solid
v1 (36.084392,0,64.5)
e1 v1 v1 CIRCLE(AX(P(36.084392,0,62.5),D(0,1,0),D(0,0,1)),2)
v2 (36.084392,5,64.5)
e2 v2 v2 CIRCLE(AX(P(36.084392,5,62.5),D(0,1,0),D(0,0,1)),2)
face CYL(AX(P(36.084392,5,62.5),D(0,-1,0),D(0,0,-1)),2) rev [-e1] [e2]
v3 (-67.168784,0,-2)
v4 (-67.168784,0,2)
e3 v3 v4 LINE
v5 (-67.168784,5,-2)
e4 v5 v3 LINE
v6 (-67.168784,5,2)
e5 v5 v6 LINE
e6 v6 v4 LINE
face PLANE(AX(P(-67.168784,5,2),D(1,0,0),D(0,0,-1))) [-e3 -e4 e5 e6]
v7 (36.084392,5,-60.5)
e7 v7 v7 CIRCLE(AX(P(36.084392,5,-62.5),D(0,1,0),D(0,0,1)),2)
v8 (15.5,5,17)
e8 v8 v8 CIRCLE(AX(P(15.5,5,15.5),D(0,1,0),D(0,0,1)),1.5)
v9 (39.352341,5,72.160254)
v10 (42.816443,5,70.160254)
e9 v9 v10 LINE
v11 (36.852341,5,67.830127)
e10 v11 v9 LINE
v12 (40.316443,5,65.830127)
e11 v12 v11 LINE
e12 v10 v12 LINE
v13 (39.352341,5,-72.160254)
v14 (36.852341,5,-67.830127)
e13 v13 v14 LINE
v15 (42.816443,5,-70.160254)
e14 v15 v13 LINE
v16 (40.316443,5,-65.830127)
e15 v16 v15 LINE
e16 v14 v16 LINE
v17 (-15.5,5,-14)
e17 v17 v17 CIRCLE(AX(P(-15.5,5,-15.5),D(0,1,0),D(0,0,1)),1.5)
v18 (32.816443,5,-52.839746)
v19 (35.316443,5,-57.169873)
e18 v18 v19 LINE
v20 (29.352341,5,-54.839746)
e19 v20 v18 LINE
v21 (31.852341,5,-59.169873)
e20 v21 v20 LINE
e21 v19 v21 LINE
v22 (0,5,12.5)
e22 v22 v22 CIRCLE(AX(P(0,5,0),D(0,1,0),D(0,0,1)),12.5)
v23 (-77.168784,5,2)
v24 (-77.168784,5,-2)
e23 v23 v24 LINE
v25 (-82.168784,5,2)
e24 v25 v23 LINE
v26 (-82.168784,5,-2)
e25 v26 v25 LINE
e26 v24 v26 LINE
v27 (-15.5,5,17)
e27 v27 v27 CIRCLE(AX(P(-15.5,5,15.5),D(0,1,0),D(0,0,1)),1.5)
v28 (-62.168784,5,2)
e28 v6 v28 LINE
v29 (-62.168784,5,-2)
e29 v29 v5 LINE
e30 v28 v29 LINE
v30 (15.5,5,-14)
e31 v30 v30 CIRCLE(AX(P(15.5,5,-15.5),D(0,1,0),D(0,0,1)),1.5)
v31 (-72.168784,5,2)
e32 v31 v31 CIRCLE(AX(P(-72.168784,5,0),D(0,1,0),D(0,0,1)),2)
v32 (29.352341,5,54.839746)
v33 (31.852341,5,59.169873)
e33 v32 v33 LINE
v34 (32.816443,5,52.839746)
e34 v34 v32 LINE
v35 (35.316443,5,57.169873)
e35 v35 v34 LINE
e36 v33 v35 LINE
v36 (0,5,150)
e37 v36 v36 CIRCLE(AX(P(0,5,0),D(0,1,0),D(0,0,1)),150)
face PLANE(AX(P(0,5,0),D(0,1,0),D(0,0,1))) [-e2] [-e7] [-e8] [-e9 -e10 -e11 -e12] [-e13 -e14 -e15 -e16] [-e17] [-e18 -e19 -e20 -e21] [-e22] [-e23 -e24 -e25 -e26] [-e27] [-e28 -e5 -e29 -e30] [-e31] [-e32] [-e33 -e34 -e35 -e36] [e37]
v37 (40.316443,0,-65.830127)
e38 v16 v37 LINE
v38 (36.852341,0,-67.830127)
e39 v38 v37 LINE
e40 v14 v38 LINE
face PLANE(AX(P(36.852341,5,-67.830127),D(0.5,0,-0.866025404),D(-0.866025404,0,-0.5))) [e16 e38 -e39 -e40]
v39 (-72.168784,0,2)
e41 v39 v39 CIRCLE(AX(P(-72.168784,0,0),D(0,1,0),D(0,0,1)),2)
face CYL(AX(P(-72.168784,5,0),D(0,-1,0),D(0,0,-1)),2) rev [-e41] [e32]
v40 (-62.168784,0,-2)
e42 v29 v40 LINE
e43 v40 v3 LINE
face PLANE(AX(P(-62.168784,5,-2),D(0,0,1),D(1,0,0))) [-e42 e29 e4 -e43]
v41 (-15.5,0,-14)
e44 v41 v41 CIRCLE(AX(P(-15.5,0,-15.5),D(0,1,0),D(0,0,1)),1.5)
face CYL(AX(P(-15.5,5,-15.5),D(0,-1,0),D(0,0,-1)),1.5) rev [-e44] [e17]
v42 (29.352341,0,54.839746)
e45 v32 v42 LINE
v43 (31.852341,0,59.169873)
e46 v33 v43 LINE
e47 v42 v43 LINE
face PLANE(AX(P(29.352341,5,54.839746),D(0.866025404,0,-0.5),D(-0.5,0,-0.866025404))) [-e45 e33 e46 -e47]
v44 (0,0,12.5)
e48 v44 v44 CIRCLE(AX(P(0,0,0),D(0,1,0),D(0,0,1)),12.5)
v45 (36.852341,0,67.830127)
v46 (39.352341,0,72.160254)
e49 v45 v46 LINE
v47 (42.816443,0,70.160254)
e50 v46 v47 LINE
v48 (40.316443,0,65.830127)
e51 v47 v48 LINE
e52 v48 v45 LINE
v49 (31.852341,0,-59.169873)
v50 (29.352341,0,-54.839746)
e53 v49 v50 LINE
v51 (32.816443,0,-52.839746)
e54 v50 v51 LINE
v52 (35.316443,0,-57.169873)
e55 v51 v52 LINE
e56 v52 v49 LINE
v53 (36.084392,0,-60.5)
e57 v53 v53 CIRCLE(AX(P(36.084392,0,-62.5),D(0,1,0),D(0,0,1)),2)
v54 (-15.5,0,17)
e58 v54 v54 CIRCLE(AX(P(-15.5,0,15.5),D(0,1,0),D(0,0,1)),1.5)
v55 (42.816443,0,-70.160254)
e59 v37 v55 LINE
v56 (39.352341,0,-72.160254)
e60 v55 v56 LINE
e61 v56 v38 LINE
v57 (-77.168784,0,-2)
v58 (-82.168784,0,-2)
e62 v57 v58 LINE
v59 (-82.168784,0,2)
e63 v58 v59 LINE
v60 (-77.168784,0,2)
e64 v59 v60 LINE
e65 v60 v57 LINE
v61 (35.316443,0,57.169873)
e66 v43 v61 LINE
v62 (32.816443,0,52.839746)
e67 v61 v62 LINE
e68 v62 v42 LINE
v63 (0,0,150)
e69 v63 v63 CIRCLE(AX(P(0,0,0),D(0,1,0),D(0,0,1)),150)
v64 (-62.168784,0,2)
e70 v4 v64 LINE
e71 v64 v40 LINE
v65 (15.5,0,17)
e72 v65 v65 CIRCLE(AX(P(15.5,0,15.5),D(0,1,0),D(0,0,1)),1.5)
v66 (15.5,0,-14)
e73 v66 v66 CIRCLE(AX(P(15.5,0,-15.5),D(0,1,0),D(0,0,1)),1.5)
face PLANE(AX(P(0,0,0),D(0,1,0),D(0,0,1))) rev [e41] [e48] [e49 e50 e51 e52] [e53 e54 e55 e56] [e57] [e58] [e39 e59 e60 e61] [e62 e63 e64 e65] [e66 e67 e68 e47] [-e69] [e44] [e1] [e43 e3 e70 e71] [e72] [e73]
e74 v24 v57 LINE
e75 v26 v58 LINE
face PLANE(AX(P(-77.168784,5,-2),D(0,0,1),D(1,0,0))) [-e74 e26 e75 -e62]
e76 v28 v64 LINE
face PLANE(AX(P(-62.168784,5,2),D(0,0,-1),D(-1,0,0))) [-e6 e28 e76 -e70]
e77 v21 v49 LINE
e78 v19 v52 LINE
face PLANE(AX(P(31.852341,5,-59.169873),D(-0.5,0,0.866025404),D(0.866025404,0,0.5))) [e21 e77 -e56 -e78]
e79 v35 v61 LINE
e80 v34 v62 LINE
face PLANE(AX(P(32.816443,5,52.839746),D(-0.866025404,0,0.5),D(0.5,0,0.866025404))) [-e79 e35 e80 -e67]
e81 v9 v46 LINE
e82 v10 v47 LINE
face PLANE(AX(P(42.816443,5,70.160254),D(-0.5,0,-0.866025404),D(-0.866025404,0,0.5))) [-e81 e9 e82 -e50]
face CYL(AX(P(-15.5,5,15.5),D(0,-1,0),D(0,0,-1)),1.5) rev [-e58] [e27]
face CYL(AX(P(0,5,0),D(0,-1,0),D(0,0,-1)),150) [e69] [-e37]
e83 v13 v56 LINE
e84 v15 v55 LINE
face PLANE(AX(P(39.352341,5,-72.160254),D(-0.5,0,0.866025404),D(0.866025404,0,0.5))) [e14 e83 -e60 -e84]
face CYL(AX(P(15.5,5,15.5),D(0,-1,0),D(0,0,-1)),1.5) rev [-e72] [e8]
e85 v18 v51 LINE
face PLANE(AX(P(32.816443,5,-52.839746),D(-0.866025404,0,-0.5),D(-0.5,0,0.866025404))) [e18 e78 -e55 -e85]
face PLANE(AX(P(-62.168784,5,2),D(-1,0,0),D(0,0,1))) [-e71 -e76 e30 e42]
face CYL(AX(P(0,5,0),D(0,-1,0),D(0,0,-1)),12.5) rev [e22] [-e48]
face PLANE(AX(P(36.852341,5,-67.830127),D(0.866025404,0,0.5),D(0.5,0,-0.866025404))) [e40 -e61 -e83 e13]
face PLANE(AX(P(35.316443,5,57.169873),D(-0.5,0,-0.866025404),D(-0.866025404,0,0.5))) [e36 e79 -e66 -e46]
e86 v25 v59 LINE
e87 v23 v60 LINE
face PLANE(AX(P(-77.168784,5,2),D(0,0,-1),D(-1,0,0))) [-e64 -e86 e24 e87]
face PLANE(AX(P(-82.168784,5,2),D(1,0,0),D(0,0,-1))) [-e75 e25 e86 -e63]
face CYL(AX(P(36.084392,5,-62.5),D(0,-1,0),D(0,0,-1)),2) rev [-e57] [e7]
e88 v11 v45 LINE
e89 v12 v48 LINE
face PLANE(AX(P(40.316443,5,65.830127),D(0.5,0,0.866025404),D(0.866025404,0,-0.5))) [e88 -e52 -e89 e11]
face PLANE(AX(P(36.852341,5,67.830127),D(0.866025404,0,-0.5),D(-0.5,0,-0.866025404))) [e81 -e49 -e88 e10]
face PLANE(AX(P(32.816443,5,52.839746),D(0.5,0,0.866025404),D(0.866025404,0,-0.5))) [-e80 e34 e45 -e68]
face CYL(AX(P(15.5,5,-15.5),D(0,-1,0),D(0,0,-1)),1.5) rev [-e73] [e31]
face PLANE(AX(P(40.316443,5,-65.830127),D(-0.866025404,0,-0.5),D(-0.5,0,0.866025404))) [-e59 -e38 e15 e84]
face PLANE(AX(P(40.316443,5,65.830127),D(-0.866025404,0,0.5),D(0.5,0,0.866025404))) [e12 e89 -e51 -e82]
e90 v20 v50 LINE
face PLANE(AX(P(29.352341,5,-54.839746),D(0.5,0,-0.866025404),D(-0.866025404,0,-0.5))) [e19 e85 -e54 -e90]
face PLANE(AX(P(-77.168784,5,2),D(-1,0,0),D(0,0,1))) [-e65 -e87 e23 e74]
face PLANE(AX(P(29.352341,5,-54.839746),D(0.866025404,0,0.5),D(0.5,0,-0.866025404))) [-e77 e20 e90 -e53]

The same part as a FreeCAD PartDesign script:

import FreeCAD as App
import Part
import Sketcher

V = App.Vector
Q = App.Units.Quantity


def add_polygon(sketch, points):
    """Adds a closed chain of lines whose ends are joined by coincident constraints."""
    first, n = sketch.GeometryCount, len(points)
    for a, b in zip(points, points[1:] + points[:1]):
        sketch.addGeometry(Part.LineSegment(App.Vector(*a, 0), App.Vector(*b, 0)), False)
    for i in range(n):
        sketch.addConstraint(Sketcher.Constraint("Coincident", first + i, 2, first + (i + 1) % n, 1))

doc = App.newDocument("Part")
body = doc.addObject("PartDesign::Body", "Body")

# Sketch on XZ plane
sketch1 = body.newObject("Sketcher::SketchObject", "Sketch")
sketch1.AttachmentSupport = (doc.getObject("XZ_Plane"), [""])
sketch1.MapMode = "FlatFace"
sketch1.addGeometry(Part.Circle(V(0, 0, 0), V(0, 0, 1), 150), False)  # 0
add_polygon(sketch1, [(-77.2, 2), (-82.2, 2), (-82.2, -2), (-77.2, -2)])  # lines 1-4
sketch1.addGeometry(Part.Circle(V(-72.2, 0, 0), V(0, 0, 1), 2), False)  # 5
add_polygon(sketch1, [(-62.2, 2), (-67.2, 2), (-67.2, -2), (-62.2, -2)])  # lines 6-9
sketch1.addGeometry(Part.Circle(V(-15.5, -15.5, 0), V(0, 0, 1), 1.5), False)  # 10
add_polygon(sketch1, [(32.8, -52.8), (29.4, -54.8), (31.9, -59.2), (35.3, -57.2)])  # lines 11-14
add_polygon(sketch1, [(40.3, -65.8), (36.9, -67.8), (39.4, -72.2), (42.8, -70.2)])  # lines 15-18
sketch1.addGeometry(Part.Circle(V(36.1, -62.5, 0), V(0, 0, 1), 2), False)  # 19
sketch1.addGeometry(Part.Circle(V(15.5, -15.5, 0), V(0, 0, 1), 1.5), False)  # 20
sketch1.addGeometry(Part.Circle(V(-15.5, 15.5, 0), V(0, 0, 1), 1.5), False)  # 21
sketch1.addGeometry(Part.Circle(V(0, 0, 0), V(0, 0, 1), 12.5), False)  # 22
sketch1.addGeometry(Part.Circle(V(15.5, 15.5, 0), V(0, 0, 1), 1.5), False)  # 23
add_polygon(sketch1, [(29.4, 54.8), (32.8, 52.8), (35.3, 57.2), (31.9, 59.2)])  # lines 24-27
sketch1.addGeometry(Part.Circle(V(36.1, 62.5, 0), V(0, 0, 1), 2), False)  # 28
add_polygon(sketch1, [(36.9, 67.8), (40.3, 65.8), (42.8, 70.2), (39.4, 72.2)])  # lines 29-32
sketch1.addConstraint([
    Sketcher.Constraint("Horizontal", 1),
    Sketcher.Constraint("Vertical", 2),
    Sketcher.Constraint("Horizontal", 3),
    Sketcher.Constraint("Vertical", 4),
    Sketcher.Constraint("Horizontal", 6),
    Sketcher.Constraint("Vertical", 7),
    Sketcher.Constraint("Horizontal", 8),
    Sketcher.Constraint("Vertical", 9),
    Sketcher.Constraint("Coincident", 0, 3, -1, 1),
    Sketcher.Constraint("Coincident", 22, 3, -1, 1),
    Sketcher.Constraint("Equal", 5, 19),
    Sketcher.Constraint("Equal", 10, 20),
    Sketcher.Constraint("Equal", 20, 21),
    Sketcher.Constraint("Equal", 21, 23),
    Sketcher.Constraint("Equal", 19, 28),
    Sketcher.Constraint("Symmetric", 20, 3, 21, 3, -1, 1),
    Sketcher.Constraint("Symmetric", 10, 3, 23, 3, -1, 1),
    Sketcher.Constraint("Symmetric", 10, 3, 20, 3, -2),
    Sketcher.Constraint("Symmetric", 19, 3, 28, 3, -1),
    Sketcher.Constraint("Symmetric", 14, 2, 24, 2, -1),
    Sketcher.Constraint("Symmetric", 13, 2, 25, 2, -1),
    Sketcher.Constraint("Symmetric", 12, 2, 26, 2, -1),
    Sketcher.Constraint("Symmetric", 11, 2, 27, 2, -1),
    Sketcher.Constraint("Symmetric", 18, 2, 29, 2, -1),
    Sketcher.Constraint("Symmetric", 17, 2, 30, 2, -1),
    Sketcher.Constraint("Symmetric", 16, 2, 31, 2, -1),
    Sketcher.Constraint("Symmetric", 15, 2, 32, 2, -1),
    Sketcher.Constraint("PointOnObject", 5, 3, -1),
    Sketcher.Constraint("Perpendicular", 11, 12),
    Sketcher.Constraint("Perpendicular", 12, 13),
    Sketcher.Constraint("Perpendicular", 13, 14),
    Sketcher.Constraint("Perpendicular", 14, 15),
    Sketcher.Constraint("Perpendicular", 15, 16),
    Sketcher.Constraint("Perpendicular", 16, 17),
    Sketcher.Constraint("Perpendicular", 17, 18),
    Sketcher.Constraint("Horizontal", 4, 2, 6, 2),
    Sketcher.Constraint("Horizontal", 3, 2, 7, 2),
    Sketcher.Constraint("Equal", 3, 6),
    Sketcher.Constraint("Equal", 13, 15),
    Sketcher.Constraint("Equal", 14, 16),
    Sketcher.Constraint("Diameter", 0, Q("300 mm")),
    Sketcher.Constraint("Diameter", 5, Q("4 mm")),
    Sketcher.Constraint("Diameter", 10, Q("3 mm")),
    Sketcher.Constraint("Diameter", 22, Q("25 mm")),
    Sketcher.Constraint("DistanceX", 1, 2, 1, 1, Q("5 mm")),
    Sketcher.Constraint("DistanceY", 2, 2, 2, 1, Q("4 mm")),
    Sketcher.Constraint("Angle", 11, Q("-150 deg")),
    Sketcher.Constraint("Distance", 11, Q("4 mm")),
    Sketcher.Constraint("Distance", 12, Q("5 mm")),
    Sketcher.Constraint("DistanceY", -1, 1, 1, 2, Q("2 mm")),
    Sketcher.Constraint("DistanceY", 19, 3, 10, 3, Q("47 mm")),
    Sketcher.Constraint("DistanceX", 10, 3, 20, 3, Q("31 mm")),
    Sketcher.Constraint("DistanceY", 10, 3, 21, 3, Q("31 mm")),
    Sketcher.Constraint("DistanceX", 1, 2, 5, 3, Q("10 mm")),
    Sketcher.Constraint("DistanceX", 5, 3, 6, 2, Q("5 mm")),
    Sketcher.Constraint("DistanceX", 12, 2, 15, 2, Q("5 mm")),
    Sketcher.Constraint("DistanceX", -1, 1, 19, 3, Q("36.084392 mm")),
    Sketcher.Constraint("DistanceX", -1, 1, 11, 2, Q("29.352341 mm")),
    Sketcher.Constraint("DistanceY", 15, 2, 11, 2, Q("12.990381 mm")),
    Sketcher.Constraint("DistanceX", 5, 3, -1, 1, Q("72.168784 mm")),
    Sketcher.Constraint("DistanceY", 11, 2, -1, 1, Q("54.839746 mm")),
])
pad1 = body.newObject("PartDesign::Pad", "Pad")
pad1.Profile = sketch1
pad1.Length = 5
pad1.Reversed = True

doc.recompute()
